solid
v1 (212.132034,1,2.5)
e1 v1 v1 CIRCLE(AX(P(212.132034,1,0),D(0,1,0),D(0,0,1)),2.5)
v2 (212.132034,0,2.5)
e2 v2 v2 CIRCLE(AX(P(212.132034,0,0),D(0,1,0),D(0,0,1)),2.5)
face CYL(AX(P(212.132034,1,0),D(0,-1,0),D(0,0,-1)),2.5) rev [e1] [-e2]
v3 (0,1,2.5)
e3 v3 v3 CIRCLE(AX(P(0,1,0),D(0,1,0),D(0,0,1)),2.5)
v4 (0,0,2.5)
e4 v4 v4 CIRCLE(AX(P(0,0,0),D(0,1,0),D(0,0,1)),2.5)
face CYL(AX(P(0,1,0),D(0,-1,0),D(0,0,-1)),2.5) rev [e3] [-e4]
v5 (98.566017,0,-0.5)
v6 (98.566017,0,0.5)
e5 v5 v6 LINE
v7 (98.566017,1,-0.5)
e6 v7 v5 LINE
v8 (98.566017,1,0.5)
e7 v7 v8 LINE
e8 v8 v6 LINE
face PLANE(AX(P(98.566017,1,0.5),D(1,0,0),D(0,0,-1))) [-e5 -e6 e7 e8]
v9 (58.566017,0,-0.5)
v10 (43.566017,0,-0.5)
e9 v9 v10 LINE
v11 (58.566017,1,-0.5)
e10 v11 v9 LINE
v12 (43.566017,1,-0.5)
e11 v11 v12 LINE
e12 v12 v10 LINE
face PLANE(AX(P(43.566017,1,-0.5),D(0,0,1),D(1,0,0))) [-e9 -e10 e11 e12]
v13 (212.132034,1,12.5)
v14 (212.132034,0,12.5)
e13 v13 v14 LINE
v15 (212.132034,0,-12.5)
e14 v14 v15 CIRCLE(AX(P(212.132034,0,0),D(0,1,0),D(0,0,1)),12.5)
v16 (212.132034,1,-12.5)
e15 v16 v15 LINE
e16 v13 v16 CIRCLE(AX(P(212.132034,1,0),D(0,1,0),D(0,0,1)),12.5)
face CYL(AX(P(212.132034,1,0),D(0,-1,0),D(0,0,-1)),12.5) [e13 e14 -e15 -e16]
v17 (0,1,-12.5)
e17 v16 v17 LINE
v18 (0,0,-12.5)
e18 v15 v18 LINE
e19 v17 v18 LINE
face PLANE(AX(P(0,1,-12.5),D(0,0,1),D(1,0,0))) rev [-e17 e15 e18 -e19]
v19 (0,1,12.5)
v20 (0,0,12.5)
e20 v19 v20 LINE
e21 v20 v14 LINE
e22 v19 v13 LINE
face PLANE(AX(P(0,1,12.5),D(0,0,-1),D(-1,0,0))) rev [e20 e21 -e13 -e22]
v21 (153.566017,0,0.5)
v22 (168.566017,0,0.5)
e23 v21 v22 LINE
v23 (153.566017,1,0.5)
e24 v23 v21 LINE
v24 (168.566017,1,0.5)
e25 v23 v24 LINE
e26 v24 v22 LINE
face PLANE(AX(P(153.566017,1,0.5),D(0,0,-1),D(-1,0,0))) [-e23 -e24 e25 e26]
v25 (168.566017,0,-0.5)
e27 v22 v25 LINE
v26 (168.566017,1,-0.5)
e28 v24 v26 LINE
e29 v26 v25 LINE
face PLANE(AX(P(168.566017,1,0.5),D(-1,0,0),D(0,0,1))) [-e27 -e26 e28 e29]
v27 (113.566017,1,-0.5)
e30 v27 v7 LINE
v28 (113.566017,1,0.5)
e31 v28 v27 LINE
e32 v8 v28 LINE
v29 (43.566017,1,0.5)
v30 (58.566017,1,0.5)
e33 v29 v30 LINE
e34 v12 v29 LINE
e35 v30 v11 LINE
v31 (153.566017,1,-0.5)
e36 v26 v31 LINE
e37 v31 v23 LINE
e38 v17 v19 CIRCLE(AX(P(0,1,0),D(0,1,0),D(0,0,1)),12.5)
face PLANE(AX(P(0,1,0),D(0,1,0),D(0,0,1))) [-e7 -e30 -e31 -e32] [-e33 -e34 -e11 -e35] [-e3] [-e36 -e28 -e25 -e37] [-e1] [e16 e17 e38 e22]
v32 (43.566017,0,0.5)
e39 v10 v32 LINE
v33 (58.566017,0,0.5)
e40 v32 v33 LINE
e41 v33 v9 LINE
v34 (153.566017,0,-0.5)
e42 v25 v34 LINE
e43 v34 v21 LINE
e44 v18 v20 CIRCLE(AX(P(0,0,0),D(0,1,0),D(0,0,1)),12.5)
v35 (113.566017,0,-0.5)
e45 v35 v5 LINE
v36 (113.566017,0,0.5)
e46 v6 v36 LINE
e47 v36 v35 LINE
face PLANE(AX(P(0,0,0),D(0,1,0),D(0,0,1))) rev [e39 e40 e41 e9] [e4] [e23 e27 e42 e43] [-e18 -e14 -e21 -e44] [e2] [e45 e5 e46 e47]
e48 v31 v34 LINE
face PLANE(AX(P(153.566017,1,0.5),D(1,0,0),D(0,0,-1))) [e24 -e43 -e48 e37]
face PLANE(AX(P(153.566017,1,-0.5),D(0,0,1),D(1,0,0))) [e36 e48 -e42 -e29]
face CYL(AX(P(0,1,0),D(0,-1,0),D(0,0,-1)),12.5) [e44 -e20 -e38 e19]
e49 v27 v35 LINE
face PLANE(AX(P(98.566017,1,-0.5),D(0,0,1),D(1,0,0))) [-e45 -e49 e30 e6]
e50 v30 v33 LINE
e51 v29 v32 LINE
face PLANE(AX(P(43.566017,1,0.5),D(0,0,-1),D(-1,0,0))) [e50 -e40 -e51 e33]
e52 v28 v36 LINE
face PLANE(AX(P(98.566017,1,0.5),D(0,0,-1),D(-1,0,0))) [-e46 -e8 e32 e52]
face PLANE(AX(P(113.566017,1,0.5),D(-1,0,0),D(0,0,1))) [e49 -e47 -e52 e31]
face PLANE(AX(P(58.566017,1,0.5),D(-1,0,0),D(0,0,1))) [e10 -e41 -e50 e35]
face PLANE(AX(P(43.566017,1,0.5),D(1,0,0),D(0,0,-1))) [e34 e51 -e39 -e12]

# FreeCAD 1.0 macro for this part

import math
import FreeCAD as App
import Part
import Sketcher

V = App.Vector


def add_polygon(sketch, points):
    """Adds a closed chain of lines whose ends are joined by coincident constraints."""
    first, n = sketch.GeometryCount, len(points)
    for a, b in zip(points, points[1:] + points[:1]):
        sketch.addGeometry(Part.LineSegment(App.Vector(*a, 0), App.Vector(*b, 0)), False)
    for i in range(n):
        sketch.addConstraint(Sketcher.Constraint("Coincident", first + i, 2, first + (i + 1) % n, 1))

doc = App.newDocument("Part")
body = doc.addObject("PartDesign::Body", "Body")

# Sketch on XZ plane
sketch1 = body.newObject("Sketcher::SketchObject", "Sketch")
sketch1.AttachmentSupport = (doc.getObject("XZ_Plane"), [""])
sketch1.MapMode = "FlatFace"
sketch1.addGeometry(Part.LineSegment(V(212.1, -12.5, 0), V(0, -12.5, 0)), False)  # 0
sketch1.addGeometry(Part.ArcOfCircle(Part.Circle(V(0, 0, 0), V(0, 0, 1), 12.5), math.radians(90), math.radians(270)), False)  # 1
sketch1.addGeometry(Part.LineSegment(V(0, 12.5, 0), V(212.1, 12.5, 0)), False)  # 2
sketch1.addGeometry(Part.ArcOfCircle(Part.Circle(V(212.1, 0, 0), V(0, 0, 1), 12.5), math.radians(-90), math.radians(90)), False)  # 3
sketch1.addGeometry(Part.Circle(V(212.1, 0, 0), V(0, 0, 1), 2.5), False)  # 4
add_polygon(sketch1, [(153.6, 0.5), (153.6, -0.5), (168.6, -0.5), (168.6, 0.5)])  # lines 5-8
add_polygon(sketch1, [(98.6, 0.5), (98.6, -0.5), (113.6, -0.5), (113.6, 0.5)])  # lines 9-12
add_polygon(sketch1, [(43.6, 0.5), (43.6, -0.5), (58.6, -0.5), (58.6, 0.5)])  # lines 13-16
sketch1.addGeometry(Part.Circle(V(0, 0, 0), V(0, 0, 1), 2.5), False)  # 17
sketch1.addConstraint(Sketcher.Constraint("Tangent", 0, 2, 1, 2))
sketch1.addConstraint(Sketcher.Constraint("Tangent", 1, 1, 2, 1))
sketch1.addConstraint(Sketcher.Constraint("Tangent", 2, 2, 3, 2))
sketch1.addConstraint(Sketcher.Constraint("Tangent", 3, 1, 0, 1))
sketch1.addConstraint(Sketcher.Constraint("Horizontal", 0))
sketch1.addConstraint(Sketcher.Constraint("Horizontal", 2))
sketch1.addConstraint(Sketcher.Constraint("Vertical", 5))
sketch1.addConstraint(Sketcher.Constraint("Horizontal", 6))
sketch1.addConstraint(Sketcher.Constraint("Vertical", 7))
sketch1.addConstraint(Sketcher.Constraint("Horizontal", 8))
sketch1.addConstraint(Sketcher.Constraint("Vertical", 9))
sketch1.addConstraint(Sketcher.Constraint("Horizontal", 10))
sketch1.addConstraint(Sketcher.Constraint("Vertical", 11))
sketch1.addConstraint(Sketcher.Constraint("Horizontal", 12))
sketch1.addConstraint(Sketcher.Constraint("Vertical", 13))
sketch1.addConstraint(Sketcher.Constraint("Horizontal", 14))
sketch1.addConstraint(Sketcher.Constraint("Vertical", 15))
sketch1.addConstraint(Sketcher.Constraint("Horizontal", 16))
sketch1.addConstraint(Sketcher.Constraint("Coincident", 1, 3, -1, 1))
sketch1.addConstraint(Sketcher.Constraint("Coincident", 17, 3, -1, 1))
sketch1.addConstraint(Sketcher.Constraint("Coincident", 4, 3, 3, 3))
sketch1.addConstraint(Sketcher.Constraint("Equal", 4, 17))
sketch1.addConstraint(Sketcher.Constraint("Horizontal", 6, 2, 9, 2))
sketch1.addConstraint(Sketcher.Constraint("Horizontal", 8, 2, 11, 2))
sketch1.addConstraint(Sketcher.Constraint("Horizontal", 10, 2, 13, 2))
sketch1.addConstraint(Sketcher.Constraint("Horizontal", 12, 2, 15, 2))
sketch1.addConstraint(Sketcher.Constraint("Equal", 8, 10))
sketch1.addConstraint(Sketcher.Constraint("Equal", 12, 14))
sketch1.addConstraint(Sketcher.Constraint("Diameter", 4, 5.0))
sketch1.addConstraint(Sketcher.Constraint("Radius", 1, 12.5))
sketch1.addConstraint(Sketcher.Constraint("DistanceX", 6, 1, 6, 2, 15.0))
sketch1.addConstraint(Sketcher.Constraint("DistanceY", 5, 2, 5, 1, 1.0))
sketch1.addConstraint(Sketcher.Constraint("DistanceY", 3, 1, 5, 2, 12.0))
sketch1.addConstraint(Sketcher.Constraint("DistanceX", 9, 2, 5, 2, 55.0))
sketch1.addConstraint(Sketcher.Constraint("DistanceX", 13, 2, 9, 2, 55.0))
sketch1.addConstraint(Sketcher.Constraint("DistanceX", 0, 2, 0, 1, 212.132034))
sketch1.addConstraint(Sketcher.Constraint("DistanceX", -1, 1, 5, 2, 153.566017))
pad1 = body.newObject("PartDesign::Pad", "Pad")
pad1.Profile = sketch1
pad1.Length = 1
pad1.Reversed = True

doc.recompute()
